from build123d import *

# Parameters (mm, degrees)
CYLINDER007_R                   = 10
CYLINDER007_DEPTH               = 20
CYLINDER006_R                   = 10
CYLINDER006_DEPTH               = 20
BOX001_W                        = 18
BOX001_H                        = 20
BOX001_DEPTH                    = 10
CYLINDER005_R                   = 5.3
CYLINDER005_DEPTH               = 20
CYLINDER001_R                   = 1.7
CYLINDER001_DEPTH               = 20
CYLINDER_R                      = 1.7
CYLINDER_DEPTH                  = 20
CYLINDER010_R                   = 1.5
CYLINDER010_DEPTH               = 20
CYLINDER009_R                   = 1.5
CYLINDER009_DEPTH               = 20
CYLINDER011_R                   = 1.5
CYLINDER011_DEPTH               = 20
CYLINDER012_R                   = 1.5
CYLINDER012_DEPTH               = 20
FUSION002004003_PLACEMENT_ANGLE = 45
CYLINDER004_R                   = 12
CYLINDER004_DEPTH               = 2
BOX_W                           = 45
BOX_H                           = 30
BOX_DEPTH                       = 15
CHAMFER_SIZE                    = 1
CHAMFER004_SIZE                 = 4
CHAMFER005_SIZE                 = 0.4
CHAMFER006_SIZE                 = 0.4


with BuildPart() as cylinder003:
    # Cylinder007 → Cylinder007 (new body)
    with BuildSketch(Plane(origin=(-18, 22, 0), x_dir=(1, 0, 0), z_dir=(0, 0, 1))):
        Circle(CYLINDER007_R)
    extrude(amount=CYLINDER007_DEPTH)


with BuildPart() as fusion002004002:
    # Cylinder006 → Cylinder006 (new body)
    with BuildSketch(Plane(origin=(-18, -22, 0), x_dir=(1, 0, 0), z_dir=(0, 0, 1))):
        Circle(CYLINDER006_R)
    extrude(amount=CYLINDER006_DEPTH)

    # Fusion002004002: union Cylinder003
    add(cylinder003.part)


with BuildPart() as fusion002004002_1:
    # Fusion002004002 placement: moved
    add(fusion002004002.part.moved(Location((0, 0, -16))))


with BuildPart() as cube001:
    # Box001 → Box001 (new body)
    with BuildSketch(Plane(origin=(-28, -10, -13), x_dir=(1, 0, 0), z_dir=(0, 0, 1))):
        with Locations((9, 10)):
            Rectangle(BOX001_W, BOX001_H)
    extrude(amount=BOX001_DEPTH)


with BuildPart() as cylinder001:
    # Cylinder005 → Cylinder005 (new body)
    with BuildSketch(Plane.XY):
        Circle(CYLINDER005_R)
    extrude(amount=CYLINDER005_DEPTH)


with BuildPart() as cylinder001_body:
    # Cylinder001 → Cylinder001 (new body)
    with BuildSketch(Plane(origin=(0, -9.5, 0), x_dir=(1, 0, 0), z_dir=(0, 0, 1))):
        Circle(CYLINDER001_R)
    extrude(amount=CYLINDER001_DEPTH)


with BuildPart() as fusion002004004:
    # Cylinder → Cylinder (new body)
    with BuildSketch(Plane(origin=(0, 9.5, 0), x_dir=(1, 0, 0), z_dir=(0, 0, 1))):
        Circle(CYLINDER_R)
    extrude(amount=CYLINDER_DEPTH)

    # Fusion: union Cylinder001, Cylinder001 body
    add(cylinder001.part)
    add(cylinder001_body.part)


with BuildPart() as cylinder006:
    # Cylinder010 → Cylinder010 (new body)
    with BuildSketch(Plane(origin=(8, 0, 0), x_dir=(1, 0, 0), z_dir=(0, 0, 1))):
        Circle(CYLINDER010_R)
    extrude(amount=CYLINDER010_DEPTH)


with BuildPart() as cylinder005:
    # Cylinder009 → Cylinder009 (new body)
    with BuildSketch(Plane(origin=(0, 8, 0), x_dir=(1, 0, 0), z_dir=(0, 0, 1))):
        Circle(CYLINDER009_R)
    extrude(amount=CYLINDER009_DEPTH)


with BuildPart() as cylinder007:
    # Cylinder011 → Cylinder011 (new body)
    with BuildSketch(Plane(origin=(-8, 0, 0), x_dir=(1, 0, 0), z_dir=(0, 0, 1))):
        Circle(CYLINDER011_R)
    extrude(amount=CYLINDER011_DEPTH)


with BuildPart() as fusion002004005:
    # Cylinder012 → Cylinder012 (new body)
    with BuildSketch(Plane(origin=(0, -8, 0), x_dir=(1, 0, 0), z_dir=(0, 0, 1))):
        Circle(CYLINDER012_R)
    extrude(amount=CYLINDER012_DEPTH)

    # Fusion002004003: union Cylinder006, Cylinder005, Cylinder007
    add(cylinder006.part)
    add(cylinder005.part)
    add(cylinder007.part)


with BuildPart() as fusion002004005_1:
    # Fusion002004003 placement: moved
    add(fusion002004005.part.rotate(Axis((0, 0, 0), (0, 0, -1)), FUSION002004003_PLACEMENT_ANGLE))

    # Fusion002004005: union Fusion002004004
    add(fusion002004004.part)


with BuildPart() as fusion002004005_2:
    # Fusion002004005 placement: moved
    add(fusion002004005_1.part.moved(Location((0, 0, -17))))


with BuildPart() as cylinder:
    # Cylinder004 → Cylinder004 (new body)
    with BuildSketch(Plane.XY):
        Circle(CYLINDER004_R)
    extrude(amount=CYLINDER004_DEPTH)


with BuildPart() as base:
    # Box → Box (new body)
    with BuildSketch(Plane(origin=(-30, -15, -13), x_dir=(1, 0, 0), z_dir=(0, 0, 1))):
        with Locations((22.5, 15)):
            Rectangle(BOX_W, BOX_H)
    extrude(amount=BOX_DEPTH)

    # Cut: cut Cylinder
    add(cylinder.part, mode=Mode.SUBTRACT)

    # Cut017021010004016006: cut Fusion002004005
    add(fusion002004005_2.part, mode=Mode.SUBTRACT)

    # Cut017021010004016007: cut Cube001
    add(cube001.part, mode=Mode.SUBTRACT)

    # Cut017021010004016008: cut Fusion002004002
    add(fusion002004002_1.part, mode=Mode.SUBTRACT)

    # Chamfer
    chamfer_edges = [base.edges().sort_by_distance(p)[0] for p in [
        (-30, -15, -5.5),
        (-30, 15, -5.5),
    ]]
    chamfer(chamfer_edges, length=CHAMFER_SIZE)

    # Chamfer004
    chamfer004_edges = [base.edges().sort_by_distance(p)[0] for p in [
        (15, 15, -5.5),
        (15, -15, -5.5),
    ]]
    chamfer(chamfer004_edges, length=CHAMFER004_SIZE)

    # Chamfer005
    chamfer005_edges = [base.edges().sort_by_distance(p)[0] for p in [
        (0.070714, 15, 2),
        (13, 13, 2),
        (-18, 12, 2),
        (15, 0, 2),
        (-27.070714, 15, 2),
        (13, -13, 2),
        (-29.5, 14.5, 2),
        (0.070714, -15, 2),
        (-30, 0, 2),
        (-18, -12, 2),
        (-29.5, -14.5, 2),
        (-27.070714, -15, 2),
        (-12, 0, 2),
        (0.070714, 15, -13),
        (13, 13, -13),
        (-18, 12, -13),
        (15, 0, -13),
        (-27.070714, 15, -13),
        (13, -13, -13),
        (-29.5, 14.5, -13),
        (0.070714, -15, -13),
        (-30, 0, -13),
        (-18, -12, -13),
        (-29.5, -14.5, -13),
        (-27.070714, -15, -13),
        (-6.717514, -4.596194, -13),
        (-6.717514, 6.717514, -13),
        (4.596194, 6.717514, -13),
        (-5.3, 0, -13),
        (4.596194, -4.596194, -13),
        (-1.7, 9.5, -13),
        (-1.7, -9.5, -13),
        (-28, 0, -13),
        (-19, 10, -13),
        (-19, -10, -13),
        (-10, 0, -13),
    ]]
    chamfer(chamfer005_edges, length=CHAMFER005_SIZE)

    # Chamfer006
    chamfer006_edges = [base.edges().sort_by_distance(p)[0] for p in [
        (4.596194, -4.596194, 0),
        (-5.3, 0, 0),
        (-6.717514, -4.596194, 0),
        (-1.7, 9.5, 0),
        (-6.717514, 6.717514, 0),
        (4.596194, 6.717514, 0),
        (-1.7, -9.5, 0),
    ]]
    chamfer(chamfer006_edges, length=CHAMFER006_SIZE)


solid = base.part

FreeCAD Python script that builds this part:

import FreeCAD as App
import Part
import Sketcher

V = App.Vector
Q = App.Units.Quantity


def edges_at(feature, points):
    """Names of the edges that pass closest to the given points."""
    edges = feature.Shape.Edges
    near = lambda p: min(range(len(edges)), key=lambda i: edges[i].distToShape(Part.Vertex(*p))[0])
    return sorted({f"Edge{near(p) + 1}" for p in points})

doc = App.newDocument("Part")
body = doc.addObject("PartDesign::Body", "Body")

# Sketch on XY plane
sketch1 = body.newObject("Sketcher::SketchObject", "Sketch")
sketch1.AttachmentSupport = (doc.getObject("XY_Plane"), [""])
sketch1.MapMode = "FlatFace"
sketch1.addGeometry(Part.Circle(V(-18, 22, 0), V(0, 0, 1), 10), False)
sketch1.addConstraint([
    Sketcher.Constraint("Diameter", 0, Q("20 mm")),
    Sketcher.Constraint("DistanceX", 0, 3, -1, 1, Q("18 mm")),
    Sketcher.Constraint("DistanceY", -1, 1, 0, 3, Q("22 mm")),
])
pad1 = body.newObject("PartDesign::Pad", "Pad")
pad1.Profile = sketch1
pad1.Length = 20
body2 = doc.addObject("PartDesign::Body", "Body001")
body2.AllowCompound = True

# Sketch on XY plane
sketch2 = body2.newObject("Sketcher::SketchObject", "Sketch001")
sketch2.AttachmentSupport = (doc.getObject("XY_Plane001"), [""])
sketch2.MapMode = "FlatFace"
sketch2.addGeometry(Part.Circle(V(-18, -22, 0), V(0, 0, 1), 10), False)
sketch2.addConstraint([
    Sketcher.Constraint("Diameter", 0, Q("20 mm")),
    Sketcher.Constraint("DistanceX", 0, 3, -1, 1, Q("18 mm")),
    Sketcher.Constraint("DistanceY", 0, 3, -1, 1, Q("22 mm")),
])
pad2 = body2.newObject("PartDesign::Pad", "Pad001")
pad2.Profile = sketch2
pad2.Length = 20
doc.recompute()

boolean = body2.newObject("PartDesign::Boolean", "Boolean")
boolean.Type = "Fuse"
boolean.addObjects([body])
body3 = doc.addObject("PartDesign::Body", "Body002")
body3.AllowCompound = True
doc.recompute()

body2.Placement = App.Placement(V(0, 0, -16), App.Rotation(V(0, 0, 1), 0))
boolean2 = body3.newObject("PartDesign::Boolean", "Boolean001")
boolean2.Type = "Fuse"
boolean2.addObjects([body2])
body4 = doc.addObject("PartDesign::Body", "Body003")

# Sketch on XY plane
sketch3 = body4.newObject("Sketcher::SketchObject", "Sketch002")
sketch3.AttachmentSupport = (doc.getObject("XY_Plane003"), [""])
sketch3.MapMode = "FlatFace"
sketch3.AttachmentOffset = App.Placement(V(0, 0, -13), App.Rotation())
sketch3.addGeometry([
    Part.LineSegment(V(-28, 10, 0), V(-28, -10, 0)),
    Part.LineSegment(V(-28, -10, 0), V(-10, -10, 0)),
    Part.LineSegment(V(-10, -10, 0), V(-10, 10, 0)),
    Part.LineSegment(V(-10, 10, 0), V(-28, 10, 0)),
], False)
sketch3.addConstraint([
    Sketcher.Constraint("Coincident", 0, 2, 1, 1),
    Sketcher.Constraint("Coincident", 1, 2, 2, 1),
    Sketcher.Constraint("Coincident", 2, 2, 3, 1),
    Sketcher.Constraint("Coincident", 3, 2, 0, 1),
    Sketcher.Constraint("Vertical", 0),
    Sketcher.Constraint("Horizontal", 1),
    Sketcher.Constraint("Vertical", 2),
    Sketcher.Constraint("Horizontal", 3),
    Sketcher.Constraint("DistanceX", 1, 1, 1, 2, Q("18 mm")),
    Sketcher.Constraint("DistanceY", 0, 2, 0, 1, Q("20 mm")),
    Sketcher.Constraint("DistanceX", 0, 2, -1, 1, Q("28 mm")),
    Sketcher.Constraint("DistanceY", 0, 2, -1, 1, Q("10 mm")),
])
pad3 = body4.newObject("PartDesign::Pad", "Pad002")
pad3.Profile = sketch3
pad3.Length = 10
body5 = doc.addObject("PartDesign::Body", "Body004")

# Sketch on XY plane
sketch4 = body5.newObject("Sketcher::SketchObject", "Sketch003")
sketch4.AttachmentSupport = (doc.getObject("XY_Plane004"), [""])
sketch4.MapMode = "FlatFace"
sketch4.addGeometry(Part.Circle(V(0, 0, 0), V(0, 0, 1), 5), False)
sketch4.addConstraint([
    Sketcher.Constraint("Coincident", 0, 3, -1, 1),
    Sketcher.Constraint("Diameter", 0, Q("10.6 mm")),
])
pad4 = body5.newObject("PartDesign::Pad", "Pad003")
pad4.Profile = sketch4
pad4.Length = 20
body6 = doc.addObject("PartDesign::Body", "Body005")

# Sketch on XY plane
sketch5 = body6.newObject("Sketcher::SketchObject", "Sketch004")
sketch5.AttachmentSupport = (doc.getObject("XY_Plane005"), [""])
sketch5.MapMode = "FlatFace"
sketch5.addGeometry(Part.Circle(V(0, -9.5, 0), V(0, 0, 1), 1.7), False)
sketch5.addConstraint([
    Sketcher.Constraint("PointOnObject", 0, 3, -2),
    Sketcher.Constraint("Diameter", 0, Q("3.4 mm")),
    Sketcher.Constraint("DistanceY", 0, 3, -1, 1, Q("9.5 mm")),
])
pad5 = body6.newObject("PartDesign::Pad", "Pad004")
pad5.Profile = sketch5
pad5.Length = 20
body7 = doc.addObject("PartDesign::Body", "Body006")
body7.AllowCompound = True

# Sketch on XY plane
sketch6 = body7.newObject("Sketcher::SketchObject", "Sketch005")
sketch6.AttachmentSupport = (doc.getObject("XY_Plane006"), [""])
sketch6.MapMode = "FlatFace"
sketch6.addGeometry(Part.Circle(V(0, 9.5, 0), V(0, 0, 1), 1.7), False)
sketch6.addConstraint([
    Sketcher.Constraint("PointOnObject", 0, 3, -2),
    Sketcher.Constraint("Diameter", 0, Q("3.4 mm")),
    Sketcher.Constraint("DistanceY", -1, 1, 0, 3, Q("9.5 mm")),
])
pad6 = body7.newObject("PartDesign::Pad", "Pad005")
pad6.Profile = sketch6
pad6.Length = 20
doc.recompute()

boolean3 = body7.newObject("PartDesign::Boolean", "Boolean002")
boolean3.Type = "Fuse"
boolean3.addObjects([body5])
doc.recompute()

boolean4 = body7.newObject("PartDesign::Boolean", "Boolean003")
boolean4.Type = "Fuse"
boolean4.addObjects([body6])
body8 = doc.addObject("PartDesign::Body", "Body007")

# Sketch on XY plane
sketch7 = body8.newObject("Sketcher::SketchObject", "Sketch006")
sketch7.AttachmentSupport = (doc.getObject("XY_Plane007"), [""])
sketch7.MapMode = "FlatFace"
sketch7.addGeometry(Part.Circle(V(8, 0, 0), V(0, 0, 1), 1.5), False)
sketch7.addConstraint([
    Sketcher.Constraint("PointOnObject", 0, 3, -1),
    Sketcher.Constraint("Diameter", 0, Q("3 mm")),
    Sketcher.Constraint("DistanceX", -1, 1, 0, 3, Q("8 mm")),
])
pad7 = body8.newObject("PartDesign::Pad", "Pad006")
pad7.Profile = sketch7
pad7.Length = 20
body9 = doc.addObject("PartDesign::Body", "Body008")

# Sketch on XY plane
sketch8 = body9.newObject("Sketcher::SketchObject", "Sketch007")
sketch8.AttachmentSupport = (doc.getObject("XY_Plane008"), [""])
sketch8.MapMode = "FlatFace"
sketch8.addGeometry(Part.Circle(V(0, 8, 0), V(0, 0, 1), 1.5), False)
sketch8.addConstraint([
    Sketcher.Constraint("PointOnObject", 0, 3, -2),
    Sketcher.Constraint("Diameter", 0, Q("3 mm")),
    Sketcher.Constraint("DistanceY", -1, 1, 0, 3, Q("8 mm")),
])
pad8 = body9.newObject("PartDesign::Pad", "Pad007")
pad8.Profile = sketch8
pad8.Length = 20
body10 = doc.addObject("PartDesign::Body", "Body009")

# Sketch on XY plane
sketch9 = body10.newObject("Sketcher::SketchObject", "Sketch008")
sketch9.AttachmentSupport = (doc.getObject("XY_Plane009"), [""])
sketch9.MapMode = "FlatFace"
sketch9.addGeometry(Part.Circle(V(-8, 0, 0), V(0, 0, 1), 1.5), False)
sketch9.addConstraint([
    Sketcher.Constraint("PointOnObject", 0, 3, -1),
    Sketcher.Constraint("Diameter", 0, Q("3 mm")),
    Sketcher.Constraint("DistanceX", 0, 3, -1, 1, Q("8 mm")),
])
pad9 = body10.newObject("PartDesign::Pad", "Pad008")
pad9.Profile = sketch9
pad9.Length = 20
body11 = doc.addObject("PartDesign::Body", "Body010")
body11.AllowCompound = True

# Sketch on XY plane
sketch10 = body11.newObject("Sketcher::SketchObject", "Sketch009")
sketch10.AttachmentSupport = (doc.getObject("XY_Plane010"), [""])
sketch10.MapMode = "FlatFace"
sketch10.addGeometry(Part.Circle(V(0, -8, 0), V(0, 0, 1), 1.5), False)
sketch10.addConstraint([
    Sketcher.Constraint("PointOnObject", 0, 3, -2),
    Sketcher.Constraint("Diameter", 0, Q("3 mm")),
    Sketcher.Constraint("DistanceY", 0, 3, -1, 1, Q("8 mm")),
])
pad10 = body11.newObject("PartDesign::Pad", "Pad009")
pad10.Profile = sketch10
pad10.Length = 20
doc.recompute()

boolean5 = body11.newObject("PartDesign::Boolean", "Boolean004")
boolean5.Type = "Fuse"
boolean5.addObjects([body8])
doc.recompute()

boolean6 = body11.newObject("PartDesign::Boolean", "Boolean005")
boolean6.Type = "Fuse"
boolean6.addObjects([body9])
doc.recompute()

boolean7 = body11.newObject("PartDesign::Boolean", "Boolean006")
boolean7.Type = "Fuse"
boolean7.addObjects([body10])
body12 = doc.addObject("PartDesign::Body", "Body011")
body12.AllowCompound = True
doc.recompute()

body11.Placement = App.Placement(V(0, 0, 0), App.Rotation(V(0, 0, -1), 45))
boolean8 = body12.newObject("PartDesign::Boolean", "Boolean007")
boolean8.Type = "Fuse"
boolean8.addObjects([body11])
doc.recompute()

boolean9 = body12.newObject("PartDesign::Boolean", "Boolean008")
boolean9.Type = "Fuse"
boolean9.addObjects([body7])
body13 = doc.addObject("PartDesign::Body", "Body012")
body13.AllowCompound = True
doc.recompute()

body12.Placement = App.Placement(V(0, 0, -17), App.Rotation(V(0, 0, 1), 0))
boolean10 = body13.newObject("PartDesign::Boolean", "Boolean009")
boolean10.Type = "Fuse"
boolean10.addObjects([body12])
body14 = doc.addObject("PartDesign::Body", "Body013")

# Sketch on XY plane
sketch11 = body14.newObject("Sketcher::SketchObject", "Sketch010")
sketch11.AttachmentSupport = (doc.getObject("XY_Plane013"), [""])
sketch11.MapMode = "FlatFace"
sketch11.addGeometry(Part.Circle(V(0, 0, 0), V(0, 0, 1), 12), False)
sketch11.addConstraint([
    Sketcher.Constraint("Coincident", 0, 3, -1, 1),
    Sketcher.Constraint("Diameter", 0, Q("24 mm")),
])
pad11 = body14.newObject("PartDesign::Pad", "Pad010")
pad11.Profile = sketch11
pad11.Length = 2
body15 = doc.addObject("PartDesign::Body", "Body014")

# Sketch on XY plane
sketch12 = body15.newObject("Sketcher::SketchObject", "Sketch011")
sketch12.AttachmentSupport = (doc.getObject("XY_Plane014"), [""])
sketch12.MapMode = "FlatFace"
sketch12.AttachmentOffset = App.Placement(V(0, 0, -13), App.Rotation())
sketch12.addGeometry([
    Part.LineSegment(V(-30, 15, 0), V(-30, -15, 0)),
    Part.LineSegment(V(-30, -15, 0), V(15, -15, 0)),
    Part.LineSegment(V(15, -15, 0), V(15, 15, 0)),
    Part.LineSegment(V(15, 15, 0), V(-30, 15, 0)),
], False)
sketch12.addConstraint([
    Sketcher.Constraint("Coincident", 0, 2, 1, 1),
    Sketcher.Constraint("Coincident", 1, 2, 2, 1),
    Sketcher.Constraint("Coincident", 2, 2, 3, 1),
    Sketcher.Constraint("Coincident", 3, 2, 0, 1),
    Sketcher.Constraint("Vertical", 0),
    Sketcher.Constraint("Horizontal", 1),
    Sketcher.Constraint("Vertical", 2),
    Sketcher.Constraint("Horizontal", 3),
    Sketcher.Constraint("DistanceX", 1, 1, 1, 2, Q("45 mm")),
    Sketcher.Constraint("DistanceY", 0, 2, 0, 1, Q("30 mm")),
    Sketcher.Constraint("DistanceX", 0, 2, -1, 1, Q("30 mm")),
    Sketcher.Constraint("DistanceY", 0, 2, -1, 1, Q("15 mm")),
])
pad12 = body15.newObject("PartDesign::Pad", "Pad011")
pad12.Profile = sketch12
pad12.Length = 15
doc.recompute()

boolean11 = body15.newObject("PartDesign::Boolean", "Boolean010")
boolean11.Type = "Cut"
boolean11.addObjects([body14])
doc.recompute()

boolean12 = body15.newObject("PartDesign::Boolean", "Boolean011")
boolean12.Type = "Cut"
boolean12.addObjects([body13])
doc.recompute()

boolean13 = body15.newObject("PartDesign::Boolean", "Boolean012")
boolean13.Type = "Cut"
boolean13.addObjects([body4])
doc.recompute()

boolean14 = body15.newObject("PartDesign::Boolean", "Boolean013")
boolean14.Type = "Cut"
boolean14.addObjects([body3])
doc.recompute()

chamfer = body15.newObject("PartDesign::Chamfer", "Chamfer")
chamfer.Base = (boolean14, edges_at(boolean14, [(-30, -15, -5.5), (-30, 15, -5.5)]))
chamfer.Size = 1
doc.recompute()

chamfer2 = body15.newObject("PartDesign::Chamfer", "Chamfer001")
chamfer2.Base = (chamfer, edges_at(chamfer, [(15, 15, -5.5), (15, -15, -5.5)]))
chamfer2.Size = 4
doc.recompute()

chamfer3 = body15.newObject("PartDesign::Chamfer", "Chamfer002")
chamfer3.Base = (chamfer2, edges_at(chamfer2, [
    (0.071, 15, 2),
    (13, 13, 2),
    (-18, 12, 2),
    (15, 0, 2),
    (-27.071, 15, 2),
    (13, -13, 2),
    (-29.5, 14.5, 2),
    (0.071, -15, 2),
    (-30, 0, 2),
    (-18, -12, 2),
    (-29.5, -14.5, 2),
    (-27.071, -15, 2),
    (-12, 0, 2),
    (0.071, 15, -13),
    (13, 13, -13),
    (-18, 12, -13),
    (15, 0, -13),
    (-27.071, 15, -13),
    (13, -13, -13),
    (-29.5, 14.5, -13),
    (0.071, -15, -13),
    (-30, 0, -13),
    (-18, -12, -13),
    (-29.5, -14.5, -13),
    (-27.071, -15, -13),
    (-6.718, -4.596, -13),
    (-6.718, 6.718, -13),
    (4.596, 6.718, -13),
    (-5.3, 0, -13),
    (4.596, -4.596, -13),
    (-1.7, 9.5, -13),
    (-1.7, -9.5, -13),
    (-28, 0, -13),
    (-19, 10, -13),
    (-19, -10, -13),
    (-10, 0, -13),
]))
chamfer3.Size = 0.4
doc.recompute()

chamfer4 = body15.newObject("PartDesign::Chamfer", "Chamfer003")
chamfer4.Base = (chamfer3, edges_at(chamfer3, [
    (4.596, -4.596, 0),
    (-5.3, 0, 0),
    (-6.718, -4.596, 0),
    (-1.7, 9.5, 0),
    (-6.718, 6.718, 0),
    (4.596, 6.718, 0),
    (-1.7, -9.5, 0),
]))
chamfer4.Size = 0.4

doc.recompute()
